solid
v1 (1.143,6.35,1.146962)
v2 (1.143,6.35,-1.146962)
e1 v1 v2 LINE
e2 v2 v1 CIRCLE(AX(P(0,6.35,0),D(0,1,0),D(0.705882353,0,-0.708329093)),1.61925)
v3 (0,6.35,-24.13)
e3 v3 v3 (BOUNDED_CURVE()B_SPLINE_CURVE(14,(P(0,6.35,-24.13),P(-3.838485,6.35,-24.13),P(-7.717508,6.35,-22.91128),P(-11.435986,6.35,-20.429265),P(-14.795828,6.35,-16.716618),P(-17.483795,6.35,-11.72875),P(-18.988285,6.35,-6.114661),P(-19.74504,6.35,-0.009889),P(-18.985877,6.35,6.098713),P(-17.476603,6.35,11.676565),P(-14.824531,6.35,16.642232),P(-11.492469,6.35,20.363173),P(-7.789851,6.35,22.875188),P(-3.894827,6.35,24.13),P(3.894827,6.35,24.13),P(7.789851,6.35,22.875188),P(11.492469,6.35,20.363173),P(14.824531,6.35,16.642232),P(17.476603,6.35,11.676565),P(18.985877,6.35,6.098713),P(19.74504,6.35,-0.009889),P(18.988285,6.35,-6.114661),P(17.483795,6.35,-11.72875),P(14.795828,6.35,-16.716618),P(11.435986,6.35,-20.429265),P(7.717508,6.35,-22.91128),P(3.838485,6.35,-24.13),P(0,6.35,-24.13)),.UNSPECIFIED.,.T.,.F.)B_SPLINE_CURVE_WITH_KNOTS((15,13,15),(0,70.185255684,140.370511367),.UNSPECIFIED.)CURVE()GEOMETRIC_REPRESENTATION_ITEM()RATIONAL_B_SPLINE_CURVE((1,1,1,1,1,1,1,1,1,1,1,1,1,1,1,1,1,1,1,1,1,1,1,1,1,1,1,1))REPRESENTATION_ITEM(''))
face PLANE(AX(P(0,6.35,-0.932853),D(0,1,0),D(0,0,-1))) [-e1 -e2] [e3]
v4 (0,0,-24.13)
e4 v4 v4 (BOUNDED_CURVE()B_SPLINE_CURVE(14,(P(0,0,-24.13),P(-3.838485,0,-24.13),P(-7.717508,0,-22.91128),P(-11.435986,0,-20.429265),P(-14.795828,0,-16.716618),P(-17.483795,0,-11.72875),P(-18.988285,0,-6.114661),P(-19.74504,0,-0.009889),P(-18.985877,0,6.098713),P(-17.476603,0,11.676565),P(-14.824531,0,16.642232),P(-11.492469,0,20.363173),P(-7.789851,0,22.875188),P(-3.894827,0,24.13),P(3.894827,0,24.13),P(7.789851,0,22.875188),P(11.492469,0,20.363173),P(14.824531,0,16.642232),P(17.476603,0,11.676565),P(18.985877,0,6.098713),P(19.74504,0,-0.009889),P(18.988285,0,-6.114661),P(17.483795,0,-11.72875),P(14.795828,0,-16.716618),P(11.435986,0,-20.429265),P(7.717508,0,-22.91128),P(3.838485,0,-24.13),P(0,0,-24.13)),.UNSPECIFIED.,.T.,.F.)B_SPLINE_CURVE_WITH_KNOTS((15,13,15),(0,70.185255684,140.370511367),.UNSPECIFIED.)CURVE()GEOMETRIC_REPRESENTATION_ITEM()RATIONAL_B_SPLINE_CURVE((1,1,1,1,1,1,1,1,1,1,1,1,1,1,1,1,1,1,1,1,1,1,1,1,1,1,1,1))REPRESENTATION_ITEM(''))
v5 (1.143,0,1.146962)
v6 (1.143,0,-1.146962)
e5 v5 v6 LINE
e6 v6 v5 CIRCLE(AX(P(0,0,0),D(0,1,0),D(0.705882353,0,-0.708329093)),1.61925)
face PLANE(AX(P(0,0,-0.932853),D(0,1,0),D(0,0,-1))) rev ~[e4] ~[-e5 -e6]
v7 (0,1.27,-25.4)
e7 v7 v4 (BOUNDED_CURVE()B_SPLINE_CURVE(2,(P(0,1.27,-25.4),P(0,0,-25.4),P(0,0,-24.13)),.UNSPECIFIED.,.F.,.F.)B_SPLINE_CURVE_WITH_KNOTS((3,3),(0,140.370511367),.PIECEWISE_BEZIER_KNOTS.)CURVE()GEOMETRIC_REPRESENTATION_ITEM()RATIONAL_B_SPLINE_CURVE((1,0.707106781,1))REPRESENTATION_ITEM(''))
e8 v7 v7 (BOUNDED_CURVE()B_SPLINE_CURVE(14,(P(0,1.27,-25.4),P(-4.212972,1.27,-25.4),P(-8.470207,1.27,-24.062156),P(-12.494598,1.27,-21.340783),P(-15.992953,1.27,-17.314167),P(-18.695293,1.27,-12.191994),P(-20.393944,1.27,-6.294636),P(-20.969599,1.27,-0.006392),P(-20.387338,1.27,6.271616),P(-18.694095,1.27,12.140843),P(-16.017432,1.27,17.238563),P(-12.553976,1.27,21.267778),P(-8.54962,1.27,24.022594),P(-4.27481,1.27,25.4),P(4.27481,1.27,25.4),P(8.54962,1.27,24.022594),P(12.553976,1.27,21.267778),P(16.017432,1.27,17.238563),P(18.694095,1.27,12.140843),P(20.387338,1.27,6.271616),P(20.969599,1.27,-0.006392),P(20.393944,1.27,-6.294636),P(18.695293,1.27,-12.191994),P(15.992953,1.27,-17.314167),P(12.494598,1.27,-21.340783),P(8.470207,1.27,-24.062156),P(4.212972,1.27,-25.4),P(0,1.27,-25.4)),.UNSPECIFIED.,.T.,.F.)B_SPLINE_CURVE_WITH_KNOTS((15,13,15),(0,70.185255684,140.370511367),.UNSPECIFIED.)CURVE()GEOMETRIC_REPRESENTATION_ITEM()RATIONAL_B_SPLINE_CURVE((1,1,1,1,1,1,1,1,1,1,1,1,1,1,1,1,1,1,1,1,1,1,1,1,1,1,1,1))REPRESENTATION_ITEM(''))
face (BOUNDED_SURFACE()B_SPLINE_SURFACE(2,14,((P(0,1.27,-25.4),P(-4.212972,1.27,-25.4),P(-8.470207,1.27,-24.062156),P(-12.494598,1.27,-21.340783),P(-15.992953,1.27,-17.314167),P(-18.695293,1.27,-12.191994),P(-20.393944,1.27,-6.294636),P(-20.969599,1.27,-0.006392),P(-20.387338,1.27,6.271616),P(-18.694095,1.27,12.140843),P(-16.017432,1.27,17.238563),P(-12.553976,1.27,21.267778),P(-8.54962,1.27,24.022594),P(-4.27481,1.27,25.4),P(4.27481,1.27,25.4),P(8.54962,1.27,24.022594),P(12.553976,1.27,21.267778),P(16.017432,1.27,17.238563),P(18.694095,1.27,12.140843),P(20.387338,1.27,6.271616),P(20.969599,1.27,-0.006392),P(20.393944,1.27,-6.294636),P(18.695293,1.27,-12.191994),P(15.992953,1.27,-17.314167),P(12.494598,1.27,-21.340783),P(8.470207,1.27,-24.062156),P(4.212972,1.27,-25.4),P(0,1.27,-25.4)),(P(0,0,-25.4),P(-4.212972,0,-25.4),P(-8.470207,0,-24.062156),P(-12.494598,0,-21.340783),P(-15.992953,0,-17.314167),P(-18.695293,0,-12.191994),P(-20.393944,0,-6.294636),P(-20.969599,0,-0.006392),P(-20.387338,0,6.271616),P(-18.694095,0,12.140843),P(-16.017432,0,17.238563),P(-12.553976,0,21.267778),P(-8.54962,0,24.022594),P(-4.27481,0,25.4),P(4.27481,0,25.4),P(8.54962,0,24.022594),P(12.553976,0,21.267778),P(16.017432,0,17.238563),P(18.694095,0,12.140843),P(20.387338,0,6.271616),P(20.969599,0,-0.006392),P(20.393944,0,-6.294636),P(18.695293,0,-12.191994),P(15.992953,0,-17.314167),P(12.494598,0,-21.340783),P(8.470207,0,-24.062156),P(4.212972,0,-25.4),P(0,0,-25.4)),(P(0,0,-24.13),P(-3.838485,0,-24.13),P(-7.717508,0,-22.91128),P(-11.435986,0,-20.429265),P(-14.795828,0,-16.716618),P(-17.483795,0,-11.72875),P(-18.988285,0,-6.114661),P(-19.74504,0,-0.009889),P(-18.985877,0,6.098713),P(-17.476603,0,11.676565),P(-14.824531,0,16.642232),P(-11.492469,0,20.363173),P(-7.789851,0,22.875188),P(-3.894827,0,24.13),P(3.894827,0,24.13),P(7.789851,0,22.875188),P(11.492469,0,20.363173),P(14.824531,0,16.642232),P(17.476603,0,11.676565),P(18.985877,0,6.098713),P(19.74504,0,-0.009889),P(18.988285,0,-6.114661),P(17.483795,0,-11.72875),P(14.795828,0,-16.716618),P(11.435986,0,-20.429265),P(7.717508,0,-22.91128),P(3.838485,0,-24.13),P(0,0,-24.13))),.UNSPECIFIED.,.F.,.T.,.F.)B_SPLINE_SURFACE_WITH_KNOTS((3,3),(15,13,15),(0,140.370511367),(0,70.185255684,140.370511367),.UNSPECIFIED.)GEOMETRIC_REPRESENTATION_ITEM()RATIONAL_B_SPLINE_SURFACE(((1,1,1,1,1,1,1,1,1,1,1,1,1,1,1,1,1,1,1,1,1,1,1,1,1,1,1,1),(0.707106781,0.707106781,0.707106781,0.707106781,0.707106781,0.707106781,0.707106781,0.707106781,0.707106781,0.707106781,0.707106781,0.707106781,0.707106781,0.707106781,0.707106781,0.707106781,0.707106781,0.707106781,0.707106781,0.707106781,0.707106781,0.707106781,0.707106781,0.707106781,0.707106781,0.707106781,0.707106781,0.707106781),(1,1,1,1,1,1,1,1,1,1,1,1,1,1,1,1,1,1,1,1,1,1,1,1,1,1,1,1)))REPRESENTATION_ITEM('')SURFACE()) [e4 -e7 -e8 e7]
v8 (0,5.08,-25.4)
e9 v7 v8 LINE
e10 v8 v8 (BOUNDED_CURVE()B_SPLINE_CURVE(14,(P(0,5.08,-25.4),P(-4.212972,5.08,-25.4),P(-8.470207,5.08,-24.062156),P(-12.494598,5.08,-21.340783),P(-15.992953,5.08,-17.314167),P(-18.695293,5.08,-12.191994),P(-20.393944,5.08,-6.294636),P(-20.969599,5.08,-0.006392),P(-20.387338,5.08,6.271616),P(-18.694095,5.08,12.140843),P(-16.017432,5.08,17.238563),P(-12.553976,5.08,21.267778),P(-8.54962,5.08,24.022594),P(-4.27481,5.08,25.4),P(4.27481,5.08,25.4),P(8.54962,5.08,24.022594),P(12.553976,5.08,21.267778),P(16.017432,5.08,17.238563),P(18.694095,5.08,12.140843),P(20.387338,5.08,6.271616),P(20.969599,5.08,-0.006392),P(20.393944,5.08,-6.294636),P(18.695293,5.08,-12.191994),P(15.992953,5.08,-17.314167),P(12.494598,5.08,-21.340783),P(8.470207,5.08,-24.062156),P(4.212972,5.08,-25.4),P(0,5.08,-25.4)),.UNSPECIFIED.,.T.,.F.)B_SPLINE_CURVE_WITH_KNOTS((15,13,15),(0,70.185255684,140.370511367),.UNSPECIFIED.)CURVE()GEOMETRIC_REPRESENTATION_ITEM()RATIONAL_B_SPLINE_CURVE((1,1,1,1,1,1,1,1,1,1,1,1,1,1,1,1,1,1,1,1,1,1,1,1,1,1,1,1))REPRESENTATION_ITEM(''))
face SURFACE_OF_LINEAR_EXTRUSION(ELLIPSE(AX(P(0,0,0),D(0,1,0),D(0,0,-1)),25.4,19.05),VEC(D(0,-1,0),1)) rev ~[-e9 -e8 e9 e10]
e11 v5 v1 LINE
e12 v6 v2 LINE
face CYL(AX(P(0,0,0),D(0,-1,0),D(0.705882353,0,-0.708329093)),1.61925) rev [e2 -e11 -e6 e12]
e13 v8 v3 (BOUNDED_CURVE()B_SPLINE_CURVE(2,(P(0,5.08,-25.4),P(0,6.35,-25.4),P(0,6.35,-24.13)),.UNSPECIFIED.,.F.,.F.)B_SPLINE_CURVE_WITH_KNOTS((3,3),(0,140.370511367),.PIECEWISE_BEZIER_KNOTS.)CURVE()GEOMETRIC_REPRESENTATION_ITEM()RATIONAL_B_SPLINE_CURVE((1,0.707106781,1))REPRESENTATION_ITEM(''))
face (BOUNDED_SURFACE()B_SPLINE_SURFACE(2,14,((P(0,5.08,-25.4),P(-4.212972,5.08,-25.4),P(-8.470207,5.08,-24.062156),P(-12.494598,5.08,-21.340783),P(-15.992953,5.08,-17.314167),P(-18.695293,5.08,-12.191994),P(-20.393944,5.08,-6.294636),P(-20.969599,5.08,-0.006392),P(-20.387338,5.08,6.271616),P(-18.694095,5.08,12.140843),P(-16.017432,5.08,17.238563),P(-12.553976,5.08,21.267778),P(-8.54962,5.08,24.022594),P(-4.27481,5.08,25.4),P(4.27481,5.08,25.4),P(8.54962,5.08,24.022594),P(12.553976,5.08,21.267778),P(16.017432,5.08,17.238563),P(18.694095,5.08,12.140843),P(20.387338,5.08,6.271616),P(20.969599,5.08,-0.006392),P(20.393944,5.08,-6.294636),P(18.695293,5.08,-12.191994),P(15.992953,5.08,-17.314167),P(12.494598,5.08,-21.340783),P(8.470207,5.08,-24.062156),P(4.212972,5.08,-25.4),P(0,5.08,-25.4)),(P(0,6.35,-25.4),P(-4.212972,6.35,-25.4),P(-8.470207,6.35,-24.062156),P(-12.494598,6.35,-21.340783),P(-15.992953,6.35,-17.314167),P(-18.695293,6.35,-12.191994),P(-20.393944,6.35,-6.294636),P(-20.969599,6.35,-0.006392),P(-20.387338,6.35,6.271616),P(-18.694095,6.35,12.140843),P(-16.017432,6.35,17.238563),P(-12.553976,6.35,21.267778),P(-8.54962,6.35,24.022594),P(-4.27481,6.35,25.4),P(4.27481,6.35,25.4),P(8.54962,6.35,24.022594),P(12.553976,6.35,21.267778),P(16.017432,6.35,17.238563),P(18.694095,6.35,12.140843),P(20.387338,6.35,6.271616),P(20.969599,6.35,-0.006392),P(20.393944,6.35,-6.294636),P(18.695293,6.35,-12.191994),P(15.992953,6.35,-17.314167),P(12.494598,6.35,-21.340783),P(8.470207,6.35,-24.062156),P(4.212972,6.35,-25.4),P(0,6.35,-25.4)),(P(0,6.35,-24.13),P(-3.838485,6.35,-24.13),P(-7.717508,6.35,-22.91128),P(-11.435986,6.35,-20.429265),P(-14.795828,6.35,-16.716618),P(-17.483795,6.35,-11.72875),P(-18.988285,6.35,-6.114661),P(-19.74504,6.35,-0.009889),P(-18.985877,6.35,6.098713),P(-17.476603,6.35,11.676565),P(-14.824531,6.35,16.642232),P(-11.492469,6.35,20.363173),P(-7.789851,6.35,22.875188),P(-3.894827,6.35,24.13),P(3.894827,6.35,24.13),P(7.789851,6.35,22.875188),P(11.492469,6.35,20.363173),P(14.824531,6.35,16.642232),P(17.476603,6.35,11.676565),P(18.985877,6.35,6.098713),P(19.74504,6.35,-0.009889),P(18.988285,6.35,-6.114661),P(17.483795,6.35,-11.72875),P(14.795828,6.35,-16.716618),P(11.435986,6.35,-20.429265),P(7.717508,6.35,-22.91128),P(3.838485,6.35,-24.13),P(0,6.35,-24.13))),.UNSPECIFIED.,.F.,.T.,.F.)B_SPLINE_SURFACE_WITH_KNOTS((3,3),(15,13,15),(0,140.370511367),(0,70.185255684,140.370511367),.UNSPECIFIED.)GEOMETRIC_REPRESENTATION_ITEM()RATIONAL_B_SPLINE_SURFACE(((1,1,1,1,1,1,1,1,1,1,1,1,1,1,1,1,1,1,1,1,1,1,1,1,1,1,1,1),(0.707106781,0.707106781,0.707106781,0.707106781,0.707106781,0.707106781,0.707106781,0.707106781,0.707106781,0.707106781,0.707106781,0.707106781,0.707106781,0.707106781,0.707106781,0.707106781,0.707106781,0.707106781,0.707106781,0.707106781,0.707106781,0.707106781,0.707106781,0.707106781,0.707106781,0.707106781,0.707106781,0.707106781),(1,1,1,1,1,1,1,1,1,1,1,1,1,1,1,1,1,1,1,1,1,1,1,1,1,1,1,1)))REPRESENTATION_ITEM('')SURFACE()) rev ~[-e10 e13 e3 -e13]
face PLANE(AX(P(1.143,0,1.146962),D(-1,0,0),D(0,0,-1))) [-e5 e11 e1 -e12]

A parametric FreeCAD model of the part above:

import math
import FreeCAD as App
import Part
import Sketcher
from FreeCAD import Vector
Q = App.Units.Quantity


def edges_at(feature, points):
    """Names of the edges that pass closest to the given points."""
    edges = feature.Shape.Edges
    near = lambda p: min(range(len(edges)), key=lambda i: edges[i].distToShape(Part.Vertex(*p))[0])
    return sorted({f"Edge{near(p) + 1}" for p in points})

doc = App.newDocument("Part")
body = doc.addObject("PartDesign::Body", "Body")

# Sketch on XZ plane
sketch1 = body.newObject("Sketcher::SketchObject", "Sketch")
sketch1.AttachmentSupport = (doc.getObject("XZ_Plane"), [""])
sketch1.MapMode = "FlatFace"
sketch1.addGeometry([
    Part.Ellipse(Vector(0, -25.4, 0), Vector(19.05, 0, 0), Vector(0, 0, 0)),
    Part.LineSegment(Vector(1.143, -1.146962, 0), Vector(1.143, 1.146962, 0)),
    Part.ArcOfCircle(Part.Circle(Vector(0, 0, 0), Vector(0, 0, 1), 1.61925), math.radians(45.099128), math.radians(314.900872)),
], False)
sketch1.addConstraint([
    Sketcher.Constraint("Block", 0),
    Sketcher.Constraint("Coincident", 1, 1, 2, 2),
    Sketcher.Constraint("Coincident", 2, 1, 1, 2),
    Sketcher.Constraint("Vertical", 1),
    Sketcher.Constraint("Coincident", 2, 3, -1, 1),
    Sketcher.Constraint("DistanceX", -1, 1, 1, 1, Q("0.045 in")),
    Sketcher.Constraint("Radius", 2, 1.61925),
])
pad1 = body.newObject("PartDesign::Pad", "Pad")
pad1.Profile = sketch1
pad1.Length = Q("0.25 in")
pad1.Reversed = True
doc.recompute()

fillet = body.newObject("PartDesign::Fillet", "Fillet")
fillet.Base = (pad1, edges_at(pad1, [(0.007, 0, 25.4), (0.007, 6.35, 25.4)]))
fillet.Radius = Q("0.05 in")

doc.recompute()
